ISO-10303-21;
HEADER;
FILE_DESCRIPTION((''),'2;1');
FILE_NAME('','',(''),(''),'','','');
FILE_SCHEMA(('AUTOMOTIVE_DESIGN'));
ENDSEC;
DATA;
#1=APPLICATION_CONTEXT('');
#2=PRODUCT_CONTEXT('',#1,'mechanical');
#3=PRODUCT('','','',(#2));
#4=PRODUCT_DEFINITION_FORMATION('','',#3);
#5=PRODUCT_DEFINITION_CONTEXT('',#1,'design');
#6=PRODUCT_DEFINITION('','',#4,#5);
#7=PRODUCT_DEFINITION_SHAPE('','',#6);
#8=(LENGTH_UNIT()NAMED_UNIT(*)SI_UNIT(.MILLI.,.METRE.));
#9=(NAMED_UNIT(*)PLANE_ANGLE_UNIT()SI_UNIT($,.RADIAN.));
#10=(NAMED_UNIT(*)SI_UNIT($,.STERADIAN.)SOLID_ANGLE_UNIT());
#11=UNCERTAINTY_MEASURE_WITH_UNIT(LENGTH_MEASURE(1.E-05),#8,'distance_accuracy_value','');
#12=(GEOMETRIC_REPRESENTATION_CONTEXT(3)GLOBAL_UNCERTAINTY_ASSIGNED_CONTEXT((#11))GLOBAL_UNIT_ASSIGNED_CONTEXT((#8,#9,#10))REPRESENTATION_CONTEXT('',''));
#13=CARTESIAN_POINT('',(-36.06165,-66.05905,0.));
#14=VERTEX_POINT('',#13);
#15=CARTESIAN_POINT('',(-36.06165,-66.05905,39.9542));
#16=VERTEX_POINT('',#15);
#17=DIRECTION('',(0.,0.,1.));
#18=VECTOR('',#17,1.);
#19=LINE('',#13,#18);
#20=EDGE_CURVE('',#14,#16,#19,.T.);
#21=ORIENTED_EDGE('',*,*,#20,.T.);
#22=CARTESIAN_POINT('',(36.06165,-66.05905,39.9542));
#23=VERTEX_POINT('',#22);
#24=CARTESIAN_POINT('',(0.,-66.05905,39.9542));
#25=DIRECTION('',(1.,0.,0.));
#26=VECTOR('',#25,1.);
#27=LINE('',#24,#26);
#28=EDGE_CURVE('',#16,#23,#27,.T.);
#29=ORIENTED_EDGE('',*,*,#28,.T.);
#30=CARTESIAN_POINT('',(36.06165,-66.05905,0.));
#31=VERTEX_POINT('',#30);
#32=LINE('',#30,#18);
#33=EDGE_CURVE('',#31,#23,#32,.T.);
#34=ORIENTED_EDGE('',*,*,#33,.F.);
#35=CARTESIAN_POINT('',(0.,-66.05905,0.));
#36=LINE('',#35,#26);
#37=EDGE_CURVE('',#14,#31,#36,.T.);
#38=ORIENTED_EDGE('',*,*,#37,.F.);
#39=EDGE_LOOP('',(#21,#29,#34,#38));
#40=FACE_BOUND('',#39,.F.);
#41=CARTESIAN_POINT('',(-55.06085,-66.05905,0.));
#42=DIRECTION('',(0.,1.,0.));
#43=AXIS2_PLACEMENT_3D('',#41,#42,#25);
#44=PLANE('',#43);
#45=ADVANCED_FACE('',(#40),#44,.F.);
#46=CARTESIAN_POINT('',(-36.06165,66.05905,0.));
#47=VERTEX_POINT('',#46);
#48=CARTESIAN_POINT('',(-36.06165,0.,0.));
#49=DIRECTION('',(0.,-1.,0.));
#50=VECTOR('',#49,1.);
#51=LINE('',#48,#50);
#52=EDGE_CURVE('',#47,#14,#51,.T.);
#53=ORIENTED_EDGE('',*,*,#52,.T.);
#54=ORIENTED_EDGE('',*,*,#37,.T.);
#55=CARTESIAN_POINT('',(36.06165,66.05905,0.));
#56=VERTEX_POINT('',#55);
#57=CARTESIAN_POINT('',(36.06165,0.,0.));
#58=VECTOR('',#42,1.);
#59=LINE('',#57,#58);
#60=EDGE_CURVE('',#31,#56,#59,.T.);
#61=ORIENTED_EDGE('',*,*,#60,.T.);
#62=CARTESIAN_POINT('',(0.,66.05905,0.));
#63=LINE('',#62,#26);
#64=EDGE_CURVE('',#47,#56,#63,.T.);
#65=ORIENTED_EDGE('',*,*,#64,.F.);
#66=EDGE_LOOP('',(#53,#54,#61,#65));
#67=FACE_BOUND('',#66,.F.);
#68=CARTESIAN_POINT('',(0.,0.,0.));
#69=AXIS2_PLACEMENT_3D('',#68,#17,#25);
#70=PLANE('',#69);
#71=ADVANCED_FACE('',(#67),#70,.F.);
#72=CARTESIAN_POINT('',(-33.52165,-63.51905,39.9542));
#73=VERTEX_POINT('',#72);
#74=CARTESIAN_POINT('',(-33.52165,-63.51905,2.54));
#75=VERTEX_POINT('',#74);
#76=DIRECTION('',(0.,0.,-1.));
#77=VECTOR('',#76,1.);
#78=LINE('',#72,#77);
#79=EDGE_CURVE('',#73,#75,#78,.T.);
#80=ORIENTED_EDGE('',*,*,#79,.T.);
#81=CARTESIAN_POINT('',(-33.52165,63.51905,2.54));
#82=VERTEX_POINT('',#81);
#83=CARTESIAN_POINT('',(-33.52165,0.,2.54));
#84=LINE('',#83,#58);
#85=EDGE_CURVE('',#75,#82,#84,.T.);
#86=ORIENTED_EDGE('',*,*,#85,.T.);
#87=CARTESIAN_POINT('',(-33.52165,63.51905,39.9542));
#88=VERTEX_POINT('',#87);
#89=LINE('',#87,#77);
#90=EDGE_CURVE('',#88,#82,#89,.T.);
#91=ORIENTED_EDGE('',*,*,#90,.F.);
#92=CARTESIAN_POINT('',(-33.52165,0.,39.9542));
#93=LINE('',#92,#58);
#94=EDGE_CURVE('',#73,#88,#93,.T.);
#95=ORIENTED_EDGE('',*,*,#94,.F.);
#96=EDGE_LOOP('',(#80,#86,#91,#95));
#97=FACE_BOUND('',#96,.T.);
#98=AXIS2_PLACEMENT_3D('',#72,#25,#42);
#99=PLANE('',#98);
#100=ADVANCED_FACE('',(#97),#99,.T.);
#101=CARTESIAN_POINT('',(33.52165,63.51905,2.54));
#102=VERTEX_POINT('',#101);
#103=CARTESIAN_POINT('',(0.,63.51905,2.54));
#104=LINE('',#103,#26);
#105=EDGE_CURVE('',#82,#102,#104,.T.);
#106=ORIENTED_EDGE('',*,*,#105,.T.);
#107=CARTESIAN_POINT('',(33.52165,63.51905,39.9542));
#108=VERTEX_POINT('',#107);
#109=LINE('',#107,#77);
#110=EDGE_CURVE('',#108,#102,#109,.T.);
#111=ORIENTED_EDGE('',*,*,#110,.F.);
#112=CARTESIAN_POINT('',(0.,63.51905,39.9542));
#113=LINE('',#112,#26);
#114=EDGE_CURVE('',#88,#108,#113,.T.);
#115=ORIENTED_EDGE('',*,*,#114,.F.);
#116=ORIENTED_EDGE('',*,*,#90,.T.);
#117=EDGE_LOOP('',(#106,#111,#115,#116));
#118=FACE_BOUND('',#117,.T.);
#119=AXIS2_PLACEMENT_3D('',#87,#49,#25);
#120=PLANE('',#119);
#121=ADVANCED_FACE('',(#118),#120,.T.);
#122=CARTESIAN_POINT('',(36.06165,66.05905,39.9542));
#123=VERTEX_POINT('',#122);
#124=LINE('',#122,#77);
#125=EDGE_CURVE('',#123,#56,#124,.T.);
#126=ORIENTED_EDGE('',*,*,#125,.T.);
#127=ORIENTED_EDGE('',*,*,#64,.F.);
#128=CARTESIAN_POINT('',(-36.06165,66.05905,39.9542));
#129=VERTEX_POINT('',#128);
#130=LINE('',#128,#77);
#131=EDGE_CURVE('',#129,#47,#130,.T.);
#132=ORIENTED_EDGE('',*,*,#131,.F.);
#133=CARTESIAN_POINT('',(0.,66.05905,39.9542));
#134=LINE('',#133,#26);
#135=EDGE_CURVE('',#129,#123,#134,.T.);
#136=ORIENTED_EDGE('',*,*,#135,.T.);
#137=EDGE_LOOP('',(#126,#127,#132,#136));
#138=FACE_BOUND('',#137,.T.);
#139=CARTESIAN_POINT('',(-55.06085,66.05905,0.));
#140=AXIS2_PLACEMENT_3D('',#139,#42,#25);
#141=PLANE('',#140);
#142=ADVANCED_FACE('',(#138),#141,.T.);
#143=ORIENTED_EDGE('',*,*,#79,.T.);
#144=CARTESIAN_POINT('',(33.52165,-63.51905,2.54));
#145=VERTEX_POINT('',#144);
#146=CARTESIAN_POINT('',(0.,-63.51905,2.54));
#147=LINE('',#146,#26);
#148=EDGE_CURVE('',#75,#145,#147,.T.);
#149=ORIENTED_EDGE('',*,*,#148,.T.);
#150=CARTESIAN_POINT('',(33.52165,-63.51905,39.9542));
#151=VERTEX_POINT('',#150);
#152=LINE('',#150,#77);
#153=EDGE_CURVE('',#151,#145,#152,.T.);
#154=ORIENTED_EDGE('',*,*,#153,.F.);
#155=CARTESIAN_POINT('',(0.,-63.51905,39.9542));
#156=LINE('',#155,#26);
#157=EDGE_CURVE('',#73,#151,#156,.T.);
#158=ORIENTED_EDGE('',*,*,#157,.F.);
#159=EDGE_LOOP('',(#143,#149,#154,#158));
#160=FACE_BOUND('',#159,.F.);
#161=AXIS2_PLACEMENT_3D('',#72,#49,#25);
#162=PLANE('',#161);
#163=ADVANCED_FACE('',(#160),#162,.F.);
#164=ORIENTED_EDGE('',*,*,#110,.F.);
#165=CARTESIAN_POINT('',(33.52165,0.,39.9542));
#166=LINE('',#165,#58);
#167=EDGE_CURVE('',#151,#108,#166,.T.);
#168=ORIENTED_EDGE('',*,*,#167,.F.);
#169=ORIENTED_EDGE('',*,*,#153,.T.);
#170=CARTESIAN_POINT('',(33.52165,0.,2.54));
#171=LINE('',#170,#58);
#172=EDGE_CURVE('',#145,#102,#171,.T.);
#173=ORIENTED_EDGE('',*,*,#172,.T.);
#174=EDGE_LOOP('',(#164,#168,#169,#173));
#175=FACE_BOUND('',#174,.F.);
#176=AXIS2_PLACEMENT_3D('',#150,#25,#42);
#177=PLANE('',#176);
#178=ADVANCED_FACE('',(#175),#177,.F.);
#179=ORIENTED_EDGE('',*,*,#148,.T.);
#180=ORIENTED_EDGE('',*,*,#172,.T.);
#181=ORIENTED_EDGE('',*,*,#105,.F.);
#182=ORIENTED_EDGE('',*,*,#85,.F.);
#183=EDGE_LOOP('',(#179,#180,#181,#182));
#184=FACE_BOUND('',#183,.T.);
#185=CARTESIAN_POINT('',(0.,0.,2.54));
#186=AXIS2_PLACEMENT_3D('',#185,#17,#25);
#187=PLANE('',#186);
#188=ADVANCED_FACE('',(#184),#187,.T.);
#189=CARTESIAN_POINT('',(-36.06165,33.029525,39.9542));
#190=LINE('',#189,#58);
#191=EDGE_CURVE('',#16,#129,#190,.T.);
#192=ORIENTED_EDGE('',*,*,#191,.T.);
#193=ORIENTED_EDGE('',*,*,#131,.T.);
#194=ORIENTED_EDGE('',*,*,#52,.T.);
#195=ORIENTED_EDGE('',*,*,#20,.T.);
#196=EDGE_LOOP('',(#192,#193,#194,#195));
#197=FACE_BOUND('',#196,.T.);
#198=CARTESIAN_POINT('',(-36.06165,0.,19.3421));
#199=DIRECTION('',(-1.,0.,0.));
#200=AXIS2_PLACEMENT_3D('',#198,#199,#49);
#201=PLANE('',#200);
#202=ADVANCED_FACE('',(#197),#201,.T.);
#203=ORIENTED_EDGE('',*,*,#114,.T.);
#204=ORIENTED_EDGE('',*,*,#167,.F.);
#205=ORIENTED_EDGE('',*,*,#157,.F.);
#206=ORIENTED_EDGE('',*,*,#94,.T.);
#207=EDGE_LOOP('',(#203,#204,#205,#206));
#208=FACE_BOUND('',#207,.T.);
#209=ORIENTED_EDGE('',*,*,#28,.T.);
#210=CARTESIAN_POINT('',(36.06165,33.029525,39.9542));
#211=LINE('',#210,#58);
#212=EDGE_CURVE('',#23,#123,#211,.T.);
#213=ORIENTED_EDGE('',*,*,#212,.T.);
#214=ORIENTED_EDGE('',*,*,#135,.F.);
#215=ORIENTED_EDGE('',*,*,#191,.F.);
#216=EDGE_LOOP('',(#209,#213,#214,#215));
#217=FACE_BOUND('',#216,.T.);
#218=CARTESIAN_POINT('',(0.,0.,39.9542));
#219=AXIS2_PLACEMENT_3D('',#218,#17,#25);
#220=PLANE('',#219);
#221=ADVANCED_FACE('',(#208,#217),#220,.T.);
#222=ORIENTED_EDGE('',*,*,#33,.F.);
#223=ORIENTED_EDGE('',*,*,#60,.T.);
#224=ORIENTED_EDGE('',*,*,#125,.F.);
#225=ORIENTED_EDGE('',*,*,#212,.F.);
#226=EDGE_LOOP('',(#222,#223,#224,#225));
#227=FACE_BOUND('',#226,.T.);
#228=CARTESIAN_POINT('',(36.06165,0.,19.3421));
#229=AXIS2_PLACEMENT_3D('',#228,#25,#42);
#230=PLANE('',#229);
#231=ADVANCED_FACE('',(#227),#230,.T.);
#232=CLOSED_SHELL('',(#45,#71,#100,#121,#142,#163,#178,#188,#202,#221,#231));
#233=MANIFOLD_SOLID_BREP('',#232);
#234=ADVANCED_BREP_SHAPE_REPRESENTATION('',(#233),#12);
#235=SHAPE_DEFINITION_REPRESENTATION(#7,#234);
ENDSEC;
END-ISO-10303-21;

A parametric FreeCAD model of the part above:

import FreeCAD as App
import Part
import Sketcher
Q = App.Units.Quantity

doc = App.newDocument("Part")
params = doc.addObject("Spreadsheet::Sheet", "Params")
for row, (alias, value) in enumerate([
    ("pad1_length", "1.573 in"),
    ("sketch2_height", "1.523 in"),
    ("pocket1_length", "0.748 in"),
    ("sketch3_height", "1.523 in"),
    ("pocket2_length", "0.748 in"),
    ("sketch4_width", "0.748 in"),
    ("sketch5_width", "0.748 in"),
    ("pocket5_length", "1.473 in"),
], start=1):
    params.set(f"A{row}", alias)
    params.set(f"B{row}", "=" + value)
    params.setAlias(f"B{row}", alias)

body = doc.addObject("PartDesign::Body", "Body")

# Sketch on XY plane
sketch1 = doc.addObject("Sketcher::SketchObject", "Sketch")
body.addObject(sketch1)
sketch1.AttachmentSupport = (doc.XY_Plane, [""])
sketch1.MapMode = "FlatFace"
sketch1.addGeometry([
    Part.LineSegment(App.Vector(-55, 66, 0), App.Vector(-55, -66, 0)),
    Part.LineSegment(App.Vector(-55, -66, 0), App.Vector(55, -66, 0)),
    Part.LineSegment(App.Vector(55, -66, 0), App.Vector(55, 66, 0)),
    Part.LineSegment(App.Vector(55, 66, 0), App.Vector(-55, 66, 0)),
], False)
sketch1.addConstraint([
    Sketcher.Constraint("Coincident", 0, 2, 1, 1),
    Sketcher.Constraint("Coincident", 1, 2, 2, 1),
    Sketcher.Constraint("Coincident", 2, 2, 3, 1),
    Sketcher.Constraint("Coincident", 3, 2, 0, 1),
    Sketcher.Constraint("Vertical", 0),
    Sketcher.Constraint("Horizontal", 1),
    Sketcher.Constraint("Vertical", 2),
    Sketcher.Constraint("Horizontal", 3),
    Sketcher.Constraint("Symmetric", 0, 2, 2, 2, -1, 1),
    Sketcher.Constraint("DistanceX", 1, 1, 1, 2, Q("4.3355 in")),
    Sketcher.Constraint("DistanceY", 0, 2, 0, 1, Q("5.2015 in")),
])
pad1 = doc.addObject("PartDesign::Pad", "Pad")
body.addObject(pad1)
pad1.Profile = sketch1
pad1.setExpression("Length", "Params.pad1_length")

# Sketch on YZ plane
sketch2 = doc.addObject("Sketcher::SketchObject", "Sketch001")
body.addObject(sketch2)
sketch2.AttachmentSupport = (doc.YZ_Plane, [""])
sketch2.MapMode = "FlatFace"
sketch2.AttachmentOffset = App.Placement(App.Vector(0, 0, -55.06085), App.Rotation())
sketch2.addGeometry([
    Part.LineSegment(App.Vector(66, 39, 0), App.Vector(66, 0, 0)),
    Part.LineSegment(App.Vector(66, 0, 0), App.Vector(-66, 0, 0)),
    Part.LineSegment(App.Vector(-66, 0, 0), App.Vector(-66, 39, 0)),
    Part.LineSegment(App.Vector(-66, 39, 0), App.Vector(66, 39, 0)),
], False)
sketch2.addConstraint([
    Sketcher.Constraint("Coincident", 0, 2, 1, 1),
    Sketcher.Constraint("Coincident", 1, 2, 2, 1),
    Sketcher.Constraint("Coincident", 2, 2, 3, 1),
    Sketcher.Constraint("Coincident", 3, 2, 0, 1),
    Sketcher.Constraint("Vertical", 0),
    Sketcher.Constraint("Horizontal", 1),
    Sketcher.Constraint("Vertical", 2),
    Sketcher.Constraint("Horizontal", 3),
    Sketcher.Constraint("Symmetric", 0, 2, 1, 2, -1, 1),
    Sketcher.Constraint("DistanceY", 0, 2, 0, 1, Q("1.523 in")),
    Sketcher.Constraint("DistanceX", 1, 2, 1, 1, Q("5.2015 in")),
])
sketch2.setExpression("Constraints[9]", "Params.sketch2_height")
pocket1 = doc.addObject("PartDesign::Pocket", "Pocket")
body.addObject(pocket1)
pocket1.Profile = sketch2
pocket1.setExpression("Length", "Params.pocket1_length")
pocket1.Reversed = True

# Sketch on YZ plane
sketch3 = doc.addObject("Sketcher::SketchObject", "Sketch002")
body.addObject(sketch3)
sketch3.AttachmentSupport = (doc.YZ_Plane, [""])
sketch3.MapMode = "FlatFace"
sketch3.AttachmentOffset = App.Placement(App.Vector(0, 0, 55.06085), App.Rotation())
sketch3.addGeometry([
    Part.LineSegment(App.Vector(-66, 39, 0), App.Vector(-66, 0, 0)),
    Part.LineSegment(App.Vector(-66, 0, 0), App.Vector(66, 0, 0)),
    Part.LineSegment(App.Vector(66, 0, 0), App.Vector(66, 39, 0)),
    Part.LineSegment(App.Vector(66, 39, 0), App.Vector(-66, 39, 0)),
], False)
sketch3.addConstraint([
    Sketcher.Constraint("Coincident", 0, 2, 1, 1),
    Sketcher.Constraint("Coincident", 1, 2, 2, 1),
    Sketcher.Constraint("Coincident", 2, 2, 3, 1),
    Sketcher.Constraint("Coincident", 3, 2, 0, 1),
    Sketcher.Constraint("Vertical", 0),
    Sketcher.Constraint("Horizontal", 1),
    Sketcher.Constraint("Vertical", 2),
    Sketcher.Constraint("Horizontal", 3),
    Sketcher.Constraint("Symmetric", 0, 2, 1, 2, -1, 1),
    Sketcher.Constraint("DistanceY", 0, 2, 0, 1, Q("1.523 in")),
    Sketcher.Constraint("DistanceX", 1, 1, 1, 2, Q("5.2015 in")),
])
sketch3.setExpression("Constraints[9]", "Params.sketch3_height")
pocket2 = doc.addObject("PartDesign::Pocket", "Pocket001")
body.addObject(pocket2)
pocket2.Profile = sketch3
pocket2.setExpression("Length", "Params.pocket2_length")

# Sketch on XY plane
sketch4 = doc.addObject("Sketcher::SketchObject", "Sketch003")
body.addObject(sketch4)
sketch4.AttachmentSupport = (doc.XY_Plane, [""])
sketch4.MapMode = "FlatFace"
sketch4.AttachmentOffset = App.Placement(App.Vector(0, 0, 1.523 * 25.4), App.Rotation())
sketch4.addGeometry([
    Part.LineSegment(App.Vector(-55, -66, 0), App.Vector(-55, 66, 0)),
    Part.LineSegment(App.Vector(-55, 66, 0), App.Vector(-36, 66, 0)),
    Part.LineSegment(App.Vector(-36, 66, 0), App.Vector(-36, -66, 0)),
    Part.LineSegment(App.Vector(-36, -66, 0), App.Vector(-55, -66, 0)),
], False)
sketch4.addConstraint([
    Sketcher.Constraint("Coincident", 0, 2, 1, 1),
    Sketcher.Constraint("Coincident", 1, 2, 2, 1),
    Sketcher.Constraint("Coincident", 2, 2, 3, 1),
    Sketcher.Constraint("Coincident", 3, 2, 0, 1),
    Sketcher.Constraint("Vertical", 0),
    Sketcher.Constraint("Horizontal", 1),
    Sketcher.Constraint("Vertical", 2),
    Sketcher.Constraint("Horizontal", 3),
    Sketcher.Constraint("DistanceX", 1, 1, 1, 2, Q("0.748 in")),
    Sketcher.Constraint("DistanceY", 0, 1, 0, 2, Q("5.2015 in")),
    Sketcher.Constraint("DistanceX", 0, 2, -1, 1, 55.06085),
    Sketcher.Constraint("DistanceY", -1, 1, 0, 2, 66.05905),
])
sketch4.setExpression("Constraints[8]", "Params.sketch4_width")
pocket3 = doc.addObject("PartDesign::Pocket", "Pocket002")
body.addObject(pocket3)
pocket3.Profile = sketch4
pocket3.Type = "ThroughAll"
pocket3.Reversed = True

# Sketch on XY plane
sketch5 = doc.addObject("Sketcher::SketchObject", "Sketch004")
body.addObject(sketch5)
sketch5.AttachmentSupport = (doc.XY_Plane, [""])
sketch5.MapMode = "FlatFace"
sketch5.AttachmentOffset = App.Placement(App.Vector(0, 0, 1.523 * 25.4), App.Rotation())
sketch5.addGeometry([
    Part.LineSegment(App.Vector(36, -66, 0), App.Vector(36, 66, 0)),
    Part.LineSegment(App.Vector(36, 66, 0), App.Vector(55, 66, 0)),
    Part.LineSegment(App.Vector(55, 66, 0), App.Vector(55, -66, 0)),
    Part.LineSegment(App.Vector(55, -66, 0), App.Vector(36, -66, 0)),
], False)
sketch5.addConstraint([
    Sketcher.Constraint("Coincident", 0, 2, 1, 1),
    Sketcher.Constraint("Coincident", 1, 2, 2, 1),
    Sketcher.Constraint("Coincident", 2, 2, 3, 1),
    Sketcher.Constraint("Coincident", 3, 2, 0, 1),
    Sketcher.Constraint("Vertical", 0),
    Sketcher.Constraint("Horizontal", 1),
    Sketcher.Constraint("Vertical", 2),
    Sketcher.Constraint("Horizontal", 3),
    Sketcher.Constraint("DistanceX", 1, 1, 1, 2, Q("0.748 in")),
    Sketcher.Constraint("DistanceY", 0, 1, 0, 2, Q("5.2015 in")),
    Sketcher.Constraint("DistanceX", -1, 1, 0, 2, 36.06165),
    Sketcher.Constraint("DistanceY", -1, 1, 0, 2, 66.05905),
])
sketch5.setExpression("Constraints[8]", "Params.sketch5_width")
pocket4 = doc.addObject("PartDesign::Pocket", "Pocket003")
body.addObject(pocket4)
pocket4.Profile = sketch5
pocket4.Type = "ThroughAll"
pocket4.Reversed = True

# Sketch on XY plane
sketch6 = doc.addObject("Sketcher::SketchObject", "Sketch005")
body.addObject(sketch6)
sketch6.AttachmentSupport = (doc.XY_Plane, [""])
sketch6.MapMode = "FlatFace"
sketch6.AttachmentOffset = App.Placement(App.Vector(0, 0, 1.573 * 25.4), App.Rotation())
sketch6.addGeometry([
    Part.LineSegment(App.Vector(-34, 64, 0), App.Vector(-34, -64, 0)),
    Part.LineSegment(App.Vector(-34, -64, 0), App.Vector(34, -64, 0)),
    Part.LineSegment(App.Vector(34, -64, 0), App.Vector(34, 64, 0)),
    Part.LineSegment(App.Vector(34, 64, 0), App.Vector(-34, 64, 0)),
], False)
sketch6.addConstraint([
    Sketcher.Constraint("Coincident", 0, 2, 1, 1),
    Sketcher.Constraint("Coincident", 1, 2, 2, 1),
    Sketcher.Constraint("Coincident", 2, 2, 3, 1),
    Sketcher.Constraint("Coincident", 3, 2, 0, 1),
    Sketcher.Constraint("Vertical", 0),
    Sketcher.Constraint("Horizontal", 1),
    Sketcher.Constraint("Vertical", 2),
    Sketcher.Constraint("Horizontal", 3),
    Sketcher.Constraint("Symmetric", 0, 2, 2, 2, -1, 1),
    Sketcher.Constraint("DistanceX", 1, 1, 1, 2, Q("2.6395 in")),
    Sketcher.Constraint("DistanceY", 0, 2, 0, 1, Q("5.0015 in")),
])
pocket5 = doc.addObject("PartDesign::Pocket", "Pocket004")
body.addObject(pocket5)
pocket5.Profile = sketch6
pocket5.setExpression("Length", "Params.pocket5_length")

doc.recompute()
